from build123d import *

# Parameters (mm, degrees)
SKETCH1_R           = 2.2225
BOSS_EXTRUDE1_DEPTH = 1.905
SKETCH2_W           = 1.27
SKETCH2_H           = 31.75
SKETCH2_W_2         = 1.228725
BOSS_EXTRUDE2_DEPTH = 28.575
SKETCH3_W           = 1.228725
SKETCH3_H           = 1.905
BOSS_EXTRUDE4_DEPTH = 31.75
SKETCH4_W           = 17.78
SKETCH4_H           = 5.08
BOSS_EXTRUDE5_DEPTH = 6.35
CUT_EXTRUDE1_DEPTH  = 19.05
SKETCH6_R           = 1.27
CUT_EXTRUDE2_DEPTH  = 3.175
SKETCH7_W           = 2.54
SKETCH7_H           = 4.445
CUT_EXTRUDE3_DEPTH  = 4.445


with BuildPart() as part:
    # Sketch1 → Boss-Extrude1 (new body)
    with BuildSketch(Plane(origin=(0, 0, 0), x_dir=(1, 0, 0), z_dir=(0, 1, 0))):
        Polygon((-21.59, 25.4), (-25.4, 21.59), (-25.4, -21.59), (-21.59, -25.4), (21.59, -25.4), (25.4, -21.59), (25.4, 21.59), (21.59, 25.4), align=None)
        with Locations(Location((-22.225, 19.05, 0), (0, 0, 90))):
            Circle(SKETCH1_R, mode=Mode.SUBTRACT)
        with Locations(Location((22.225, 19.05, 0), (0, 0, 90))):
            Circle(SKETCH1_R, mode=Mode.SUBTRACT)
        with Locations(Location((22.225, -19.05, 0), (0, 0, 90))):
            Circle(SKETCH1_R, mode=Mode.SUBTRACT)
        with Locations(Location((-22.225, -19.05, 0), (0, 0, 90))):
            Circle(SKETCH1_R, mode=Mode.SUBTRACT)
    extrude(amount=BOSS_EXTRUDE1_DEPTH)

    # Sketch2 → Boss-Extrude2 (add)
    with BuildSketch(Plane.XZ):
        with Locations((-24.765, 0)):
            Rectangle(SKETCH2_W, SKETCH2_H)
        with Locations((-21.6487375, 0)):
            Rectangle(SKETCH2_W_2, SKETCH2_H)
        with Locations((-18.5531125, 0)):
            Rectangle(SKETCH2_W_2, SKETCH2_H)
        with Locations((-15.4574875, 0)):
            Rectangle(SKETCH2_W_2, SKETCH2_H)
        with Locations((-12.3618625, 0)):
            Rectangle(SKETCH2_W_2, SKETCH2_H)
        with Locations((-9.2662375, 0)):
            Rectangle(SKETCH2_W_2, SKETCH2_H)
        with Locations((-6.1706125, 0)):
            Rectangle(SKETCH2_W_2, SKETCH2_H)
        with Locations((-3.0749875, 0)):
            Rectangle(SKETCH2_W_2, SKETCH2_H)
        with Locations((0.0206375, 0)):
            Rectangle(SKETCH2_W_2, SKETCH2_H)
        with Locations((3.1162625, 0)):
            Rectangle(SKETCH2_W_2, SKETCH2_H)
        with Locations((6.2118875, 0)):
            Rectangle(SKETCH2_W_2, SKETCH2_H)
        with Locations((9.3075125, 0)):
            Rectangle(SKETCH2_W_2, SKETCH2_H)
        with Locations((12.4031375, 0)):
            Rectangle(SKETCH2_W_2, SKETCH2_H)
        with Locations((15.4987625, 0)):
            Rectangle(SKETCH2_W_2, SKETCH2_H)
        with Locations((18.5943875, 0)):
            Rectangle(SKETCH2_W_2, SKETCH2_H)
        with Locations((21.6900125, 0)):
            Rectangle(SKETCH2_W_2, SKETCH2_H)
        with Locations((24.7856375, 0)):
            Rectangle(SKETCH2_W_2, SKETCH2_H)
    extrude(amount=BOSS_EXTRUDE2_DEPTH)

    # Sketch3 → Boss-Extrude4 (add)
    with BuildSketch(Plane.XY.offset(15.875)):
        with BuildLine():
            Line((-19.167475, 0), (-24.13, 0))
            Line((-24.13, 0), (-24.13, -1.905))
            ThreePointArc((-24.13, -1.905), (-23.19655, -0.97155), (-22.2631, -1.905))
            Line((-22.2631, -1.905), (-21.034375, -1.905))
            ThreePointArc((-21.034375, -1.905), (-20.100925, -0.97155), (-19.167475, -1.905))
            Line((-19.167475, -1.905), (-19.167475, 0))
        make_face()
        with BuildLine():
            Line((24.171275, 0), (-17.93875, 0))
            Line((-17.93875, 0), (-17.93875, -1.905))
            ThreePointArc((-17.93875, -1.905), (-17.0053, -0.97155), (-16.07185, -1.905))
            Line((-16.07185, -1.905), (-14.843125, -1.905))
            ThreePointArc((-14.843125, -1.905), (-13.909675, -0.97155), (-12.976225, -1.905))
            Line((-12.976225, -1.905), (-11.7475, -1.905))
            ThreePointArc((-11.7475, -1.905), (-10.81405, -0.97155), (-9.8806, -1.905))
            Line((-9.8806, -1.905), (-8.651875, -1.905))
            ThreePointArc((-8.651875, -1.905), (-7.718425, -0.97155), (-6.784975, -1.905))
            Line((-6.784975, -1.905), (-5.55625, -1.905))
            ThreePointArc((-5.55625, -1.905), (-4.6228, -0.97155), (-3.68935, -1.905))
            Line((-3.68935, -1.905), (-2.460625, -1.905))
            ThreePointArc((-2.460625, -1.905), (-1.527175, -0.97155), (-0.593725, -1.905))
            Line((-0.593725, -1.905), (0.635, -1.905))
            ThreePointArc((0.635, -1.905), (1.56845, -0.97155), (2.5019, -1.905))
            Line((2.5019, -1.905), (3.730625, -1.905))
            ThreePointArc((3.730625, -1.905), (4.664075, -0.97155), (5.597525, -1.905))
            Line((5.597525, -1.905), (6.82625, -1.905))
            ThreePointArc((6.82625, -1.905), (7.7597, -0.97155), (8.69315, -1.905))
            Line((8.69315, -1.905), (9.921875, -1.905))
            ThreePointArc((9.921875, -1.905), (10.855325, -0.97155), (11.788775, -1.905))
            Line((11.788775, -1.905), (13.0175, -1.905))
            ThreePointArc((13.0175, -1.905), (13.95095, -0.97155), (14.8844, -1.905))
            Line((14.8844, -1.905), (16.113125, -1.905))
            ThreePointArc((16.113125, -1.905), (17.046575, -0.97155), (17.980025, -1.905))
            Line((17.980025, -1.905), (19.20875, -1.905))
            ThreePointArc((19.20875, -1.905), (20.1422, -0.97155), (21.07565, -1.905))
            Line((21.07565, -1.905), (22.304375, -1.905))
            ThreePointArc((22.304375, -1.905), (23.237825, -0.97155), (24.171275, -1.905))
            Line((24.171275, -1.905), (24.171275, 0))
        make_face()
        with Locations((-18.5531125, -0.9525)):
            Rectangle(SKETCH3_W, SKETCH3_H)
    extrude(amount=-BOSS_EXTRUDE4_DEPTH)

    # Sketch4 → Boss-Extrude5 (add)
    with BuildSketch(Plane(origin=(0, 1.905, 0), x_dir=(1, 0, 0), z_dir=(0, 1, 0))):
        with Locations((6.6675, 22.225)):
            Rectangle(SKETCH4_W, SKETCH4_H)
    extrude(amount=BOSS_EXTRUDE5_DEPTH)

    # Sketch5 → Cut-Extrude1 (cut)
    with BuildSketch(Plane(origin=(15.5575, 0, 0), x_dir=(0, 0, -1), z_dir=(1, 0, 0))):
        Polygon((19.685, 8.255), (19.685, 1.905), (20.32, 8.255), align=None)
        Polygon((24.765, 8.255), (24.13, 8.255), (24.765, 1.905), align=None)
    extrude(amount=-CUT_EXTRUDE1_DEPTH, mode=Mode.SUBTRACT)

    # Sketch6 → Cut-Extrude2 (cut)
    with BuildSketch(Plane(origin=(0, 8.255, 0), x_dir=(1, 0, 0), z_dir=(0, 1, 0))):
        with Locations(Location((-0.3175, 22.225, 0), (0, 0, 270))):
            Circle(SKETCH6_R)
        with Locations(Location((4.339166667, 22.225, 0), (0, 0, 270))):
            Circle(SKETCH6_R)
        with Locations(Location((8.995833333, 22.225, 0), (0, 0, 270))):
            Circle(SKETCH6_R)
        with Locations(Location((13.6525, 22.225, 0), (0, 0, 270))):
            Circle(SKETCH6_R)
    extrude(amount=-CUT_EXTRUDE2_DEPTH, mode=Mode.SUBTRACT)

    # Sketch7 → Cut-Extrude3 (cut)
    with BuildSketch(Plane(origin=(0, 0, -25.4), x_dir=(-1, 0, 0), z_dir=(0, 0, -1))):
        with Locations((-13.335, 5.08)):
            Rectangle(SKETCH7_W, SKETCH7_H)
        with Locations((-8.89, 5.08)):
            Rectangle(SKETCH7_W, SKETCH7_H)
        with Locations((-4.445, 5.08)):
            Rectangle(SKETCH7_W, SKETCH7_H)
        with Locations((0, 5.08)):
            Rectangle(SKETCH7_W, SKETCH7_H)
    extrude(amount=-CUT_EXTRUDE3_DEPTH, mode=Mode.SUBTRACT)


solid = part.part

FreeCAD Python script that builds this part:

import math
import FreeCAD as App
import Part
import Sketcher

V = App.Vector
Q = App.Units.Quantity

doc = App.newDocument("Part")
body = doc.addObject("PartDesign::Body", "Body")

sketch1 = doc.addObject("Sketcher::SketchObject", "Sketch")
body.addObject(sketch1)
sketch1.AttachmentSupport = (doc.XZ_Plane, [""])
sketch1.MapMode = "FlatFace"
sketch1.addGeometry([
    Part.LineSegment(V(-21.6, -25.4, 0), V(-25.4, -21.6, 0)),
    Part.LineSegment(V(-25.4, -21.6, 0), V(-25.4, 21.6, 0)),
    Part.LineSegment(V(-25.4, 21.6, 0), V(-21.6, 25.4, 0)),
    Part.LineSegment(V(-21.6, 25.4, 0), V(21.6, 25.4, 0)),
    Part.LineSegment(V(21.6, 25.4, 0), V(25.4, 21.6, 0)),
    Part.LineSegment(V(25.4, 21.6, 0), V(25.4, -21.6, 0)),
    Part.LineSegment(V(25.4, -21.6, 0), V(21.6, -25.4, 0)),
    Part.LineSegment(V(21.6, -25.4, 0), V(-21.6, -25.4, 0)),
    Part.Circle(V(-22.2, 19.1, 0), V(0, 0, 1), 2.2),
    Part.Circle(V(22.2, 19.1, 0), V(0, 0, 1), 2.2),
    Part.Circle(V(-22.2, -19.1, 0), V(0, 0, 1), 2.2),
    Part.Circle(V(22.2, -19.1, 0), V(0, 0, 1), 2.2),
], False)
sketch1.addConstraint([
    Sketcher.Constraint("Coincident", 0, 2, 1, 1),
    Sketcher.Constraint("Coincident", 1, 2, 2, 1),
    Sketcher.Constraint("Coincident", 2, 2, 3, 1),
    Sketcher.Constraint("Coincident", 3, 2, 4, 1),
    Sketcher.Constraint("Coincident", 4, 2, 5, 1),
    Sketcher.Constraint("Coincident", 5, 2, 6, 1),
    Sketcher.Constraint("Coincident", 6, 2, 7, 1),
    Sketcher.Constraint("Coincident", 7, 2, 0, 1),
    Sketcher.Constraint("Vertical", 1),
    Sketcher.Constraint("Horizontal", 3),
    Sketcher.Constraint("Vertical", 5),
    Sketcher.Constraint("Horizontal", 7),
    Sketcher.Constraint("Equal", 8, 9),
    Sketcher.Constraint("Equal", 9, 10),
    Sketcher.Constraint("Equal", 10, 11),
    Sketcher.Constraint("Symmetric", 9, 3, 10, 3, -1, 1),
    Sketcher.Constraint("Symmetric", 8, 3, 11, 3, -1, 1),
    Sketcher.Constraint("Symmetric", 0, 2, 4, 2, -1, 1),
    Sketcher.Constraint("Symmetric", 2, 2, 6, 2, -1, 1),
    Sketcher.Constraint("Symmetric", 8, 3, 9, 3, -2),
    Sketcher.Constraint("Perpendicular", 0, 2),
    Sketcher.Constraint("Perpendicular", 2, 4),
    Sketcher.Constraint("Perpendicular", 4, 6),
    Sketcher.Constraint("Horizontal", 1, 2, 4, 2),
    Sketcher.Constraint("Vertical", 3, 2, 6, 2),
    Sketcher.Constraint("Equal", 7, 1),
    Sketcher.Constraint("Diameter", 8, Q("0.175 in")),
    Sketcher.Constraint("DistanceX", 3, 1, 3, 2, Q("1.7 in")),
    Sketcher.Constraint("DistanceX", 0, 2, -1, 1, Q("1 in")),
    Sketcher.Constraint("DistanceY", 10, 3, 8, 3, Q("1.5 in")),
    Sketcher.Constraint("DistanceX", 8, 3, 9, 3, Q("1.75 in")),
])
pad1 = doc.addObject("PartDesign::Pad", "Pad")
body.addObject(pad1)
pad1.Profile = sketch1
pad1.Length = Q("0.075 in")
pad1.Reversed = True

sketch2 = doc.addObject("Sketcher::SketchObject", "Sketch001")
body.addObject(sketch2)
sketch2.AttachmentSupport = (doc.XZ_Plane, [""])
sketch2.MapMode = "FlatFace"
sketch2.addGeometry([
    Part.LineSegment(V(-25.4, 15.9, 0), V(-25.4, -15.9, 0)),
    Part.LineSegment(V(-25.4, -15.9, 0), V(-24.1, -15.9, 0)),
    Part.LineSegment(V(-24.1, -15.9, 0), V(-24.1, 15.9, 0)),
    Part.LineSegment(V(-24.1, 15.9, 0), V(-25.4, 15.9, 0)),
    Part.LineSegment(V(-22.3, 15.9, 0), V(-22.3, -15.9, 0)),
    Part.LineSegment(V(-22.3, -15.9, 0), V(-21, -15.9, 0)),
    Part.LineSegment(V(-21, -15.9, 0), V(-21, 15.9, 0)),
    Part.LineSegment(V(-21, 15.9, 0), V(-22.3, 15.9, 0)),
    Part.LineSegment(V(-19.2, 15.9, 0), V(-19.2, -15.9, 0)),
    Part.LineSegment(V(-19.2, -15.9, 0), V(-17.9, -15.9, 0)),
    Part.LineSegment(V(-17.9, -15.9, 0), V(-17.9, 15.9, 0)),
    Part.LineSegment(V(-17.9, 15.9, 0), V(-19.2, 15.9, 0)),
    Part.LineSegment(V(-16.1, 15.9, 0), V(-16.1, -15.9, 0)),
    Part.LineSegment(V(-16.1, -15.9, 0), V(-14.8, -15.9, 0)),
    Part.LineSegment(V(-14.8, -15.9, 0), V(-14.8, 15.9, 0)),
    Part.LineSegment(V(-14.8, 15.9, 0), V(-16.1, 15.9, 0)),
    Part.LineSegment(V(-13, 15.9, 0), V(-13, -15.9, 0)),
    Part.LineSegment(V(-13, -15.9, 0), V(-11.7, -15.9, 0)),
    Part.LineSegment(V(-11.7, -15.9, 0), V(-11.7, 15.9, 0)),
    Part.LineSegment(V(-11.7, 15.9, 0), V(-13, 15.9, 0)),
    Part.LineSegment(V(-9.9, 15.9, 0), V(-9.9, -15.9, 0)),
    Part.LineSegment(V(-9.9, -15.9, 0), V(-8.7, -15.9, 0)),
    Part.LineSegment(V(-8.7, -15.9, 0), V(-8.7, 15.9, 0)),
    Part.LineSegment(V(-8.7, 15.9, 0), V(-9.9, 15.9, 0)),
    Part.LineSegment(V(-6.8, 15.9, 0), V(-6.8, -15.9, 0)),
    Part.LineSegment(V(-6.8, -15.9, 0), V(-5.6, -15.9, 0)),
    Part.LineSegment(V(-5.6, -15.9, 0), V(-5.6, 15.9, 0)),
    Part.LineSegment(V(-5.6, 15.9, 0), V(-6.8, 15.9, 0)),
    Part.LineSegment(V(-3.7, 15.9, 0), V(-3.7, -15.9, 0)),
    Part.LineSegment(V(-3.7, -15.9, 0), V(-2.5, -15.9, 0)),
    Part.LineSegment(V(-2.5, -15.9, 0), V(-2.5, 15.9, 0)),
    Part.LineSegment(V(-2.5, 15.9, 0), V(-3.7, 15.9, 0)),
    Part.LineSegment(V(-0.6, 15.9, 0), V(-0.6, -15.9, 0)),
    Part.LineSegment(V(-0.6, -15.9, 0), V(0.6, -15.9, 0)),
    Part.LineSegment(V(0.6, -15.9, 0), V(0.6, 15.9, 0)),
    Part.LineSegment(V(0.6, 15.9, 0), V(-0.6, 15.9, 0)),
    Part.LineSegment(V(2.5, 15.9, 0), V(2.5, -15.9, 0)),
    Part.LineSegment(V(2.5, -15.9, 0), V(3.7, -15.9, 0)),
    Part.LineSegment(V(3.7, -15.9, 0), V(3.7, 15.9, 0)),
    Part.LineSegment(V(3.7, 15.9, 0), V(2.5, 15.9, 0)),
    Part.LineSegment(V(5.6, 15.9, 0), V(5.6, -15.9, 0)),
    Part.LineSegment(V(5.6, -15.9, 0), V(6.8, -15.9, 0)),
    Part.LineSegment(V(6.8, -15.9, 0), V(6.8, 15.9, 0)),
    Part.LineSegment(V(6.8, 15.9, 0), V(5.6, 15.9, 0)),
    Part.LineSegment(V(8.7, 15.9, 0), V(8.7, -15.9, 0)),
    Part.LineSegment(V(8.7, -15.9, 0), V(9.9, -15.9, 0)),
    Part.LineSegment(V(9.9, -15.9, 0), V(9.9, 15.9, 0)),
    Part.LineSegment(V(9.9, 15.9, 0), V(8.7, 15.9, 0)),
    Part.LineSegment(V(11.8, 15.9, 0), V(11.8, -15.9, 0)),
    Part.LineSegment(V(11.8, -15.9, 0), V(13, -15.9, 0)),
    Part.LineSegment(V(13, -15.9, 0), V(13, 15.9, 0)),
    Part.LineSegment(V(13, 15.9, 0), V(11.8, 15.9, 0)),
    Part.LineSegment(V(14.9, 15.9, 0), V(14.9, -15.9, 0)),
    Part.LineSegment(V(14.9, -15.9, 0), V(16.1, -15.9, 0)),
    Part.LineSegment(V(16.1, -15.9, 0), V(16.1, 15.9, 0)),
    Part.LineSegment(V(16.1, 15.9, 0), V(14.9, 15.9, 0)),
    Part.LineSegment(V(18, 15.9, 0), V(18, -15.9, 0)),
    Part.LineSegment(V(18, -15.9, 0), V(19.2, -15.9, 0)),
    Part.LineSegment(V(19.2, -15.9, 0), V(19.2, 15.9, 0)),
    Part.LineSegment(V(19.2, 15.9, 0), V(18, 15.9, 0)),
    Part.LineSegment(V(21.1, 15.9, 0), V(21.1, -15.9, 0)),
    Part.LineSegment(V(21.1, -15.9, 0), V(22.3, -15.9, 0)),
    Part.LineSegment(V(22.3, -15.9, 0), V(22.3, 15.9, 0)),
    Part.LineSegment(V(22.3, 15.9, 0), V(21.1, 15.9, 0)),
    Part.LineSegment(V(24.2, 15.9, 0), V(24.2, -15.9, 0)),
    Part.LineSegment(V(24.2, -15.9, 0), V(25.4, -15.9, 0)),
    Part.LineSegment(V(25.4, -15.9, 0), V(25.4, 15.9, 0)),
    Part.LineSegment(V(25.4, 15.9, 0), V(24.2, 15.9, 0)),
], False)
sketch2.addConstraint([
    Sketcher.Constraint("Coincident", 0, 2, 1, 1),
    Sketcher.Constraint("Coincident", 1, 2, 2, 1),
    Sketcher.Constraint("Coincident", 2, 2, 3, 1),
    Sketcher.Constraint("Coincident", 3, 2, 0, 1),
    Sketcher.Constraint("Coincident", 4, 2, 5, 1),
    Sketcher.Constraint("Coincident", 5, 2, 6, 1),
    Sketcher.Constraint("Coincident", 6, 2, 7, 1),
    Sketcher.Constraint("Coincident", 7, 2, 4, 1),
    Sketcher.Constraint("Coincident", 8, 2, 9, 1),
    Sketcher.Constraint("Coincident", 9, 2, 10, 1),
    Sketcher.Constraint("Coincident", 10, 2, 11, 1),
    Sketcher.Constraint("Coincident", 11, 2, 8, 1),
    Sketcher.Constraint("Coincident", 12, 2, 13, 1),
    Sketcher.Constraint("Coincident", 13, 2, 14, 1),
    Sketcher.Constraint("Coincident", 14, 2, 15, 1),
    Sketcher.Constraint("Coincident", 15, 2, 12, 1),
    Sketcher.Constraint("Coincident", 16, 2, 17, 1),
    Sketcher.Constraint("Coincident", 17, 2, 18, 1),
    Sketcher.Constraint("Coincident", 18, 2, 19, 1),
    Sketcher.Constraint("Coincident", 19, 2, 16, 1),
    Sketcher.Constraint("Coincident", 20, 2, 21, 1),
    Sketcher.Constraint("Coincident", 21, 2, 22, 1),
    Sketcher.Constraint("Coincident", 22, 2, 23, 1),
    Sketcher.Constraint("Coincident", 23, 2, 20, 1),
    Sketcher.Constraint("Coincident", 24, 2, 25, 1),
    Sketcher.Constraint("Coincident", 25, 2, 26, 1),
    Sketcher.Constraint("Coincident", 26, 2, 27, 1),
    Sketcher.Constraint("Coincident", 27, 2, 24, 1),
    Sketcher.Constraint("Coincident", 28, 2, 29, 1),
    Sketcher.Constraint("Coincident", 29, 2, 30, 1),
    Sketcher.Constraint("Coincident", 30, 2, 31, 1),
    Sketcher.Constraint("Coincident", 31, 2, 28, 1),
    Sketcher.Constraint("Coincident", 32, 2, 33, 1),
    Sketcher.Constraint("Coincident", 33, 2, 34, 1),
    Sketcher.Constraint("Coincident", 34, 2, 35, 1),
    Sketcher.Constraint("Coincident", 35, 2, 32, 1),
    Sketcher.Constraint("Coincident", 36, 2, 37, 1),
    Sketcher.Constraint("Coincident", 37, 2, 38, 1),
    Sketcher.Constraint("Coincident", 38, 2, 39, 1),
    Sketcher.Constraint("Coincident", 39, 2, 36, 1),
    Sketcher.Constraint("Coincident", 40, 2, 41, 1),
    Sketcher.Constraint("Coincident", 41, 2, 42, 1),
    Sketcher.Constraint("Coincident", 42, 2, 43, 1),
    Sketcher.Constraint("Coincident", 43, 2, 40, 1),
    Sketcher.Constraint("Coincident", 44, 2, 45, 1),
    Sketcher.Constraint("Coincident", 45, 2, 46, 1),
    Sketcher.Constraint("Coincident", 46, 2, 47, 1),
    Sketcher.Constraint("Coincident", 47, 2, 44, 1),
    Sketcher.Constraint("Coincident", 48, 2, 49, 1),
    Sketcher.Constraint("Coincident", 49, 2, 50, 1),
    Sketcher.Constraint("Coincident", 50, 2, 51, 1),
    Sketcher.Constraint("Coincident", 51, 2, 48, 1),
    Sketcher.Constraint("Coincident", 52, 2, 53, 1),
    Sketcher.Constraint("Coincident", 53, 2, 54, 1),
    Sketcher.Constraint("Coincident", 54, 2, 55, 1),
    Sketcher.Constraint("Coincident", 55, 2, 52, 1),
    Sketcher.Constraint("Coincident", 56, 2, 57, 1),
    Sketcher.Constraint("Coincident", 57, 2, 58, 1),
    Sketcher.Constraint("Coincident", 58, 2, 59, 1),
    Sketcher.Constraint("Coincident", 59, 2, 56, 1),
    Sketcher.Constraint("Coincident", 60, 2, 61, 1),
    Sketcher.Constraint("Coincident", 61, 2, 62, 1),
    Sketcher.Constraint("Coincident", 62, 2, 63, 1),
    Sketcher.Constraint("Coincident", 63, 2, 60, 1),
    Sketcher.Constraint("Coincident", 64, 2, 65, 1),
    Sketcher.Constraint("Coincident", 65, 2, 66, 1),
    Sketcher.Constraint("Coincident", 66, 2, 67, 1),
    Sketcher.Constraint("Coincident", 67, 2, 64, 1),
    Sketcher.Constraint("Vertical", 0),
    Sketcher.Constraint("Horizontal", 1),
    Sketcher.Constraint("Vertical", 2),
    Sketcher.Constraint("Horizontal", 3),
    Sketcher.Constraint("Vertical", 4),
    Sketcher.Constraint("Horizontal", 5),
    Sketcher.Constraint("Vertical", 6),
    Sketcher.Constraint("Horizontal", 7),
    Sketcher.Constraint("Vertical", 8),
    Sketcher.Constraint("Horizontal", 9),
    Sketcher.Constraint("Vertical", 10),
    Sketcher.Constraint("Horizontal", 11),
    Sketcher.Constraint("Vertical", 12),
    Sketcher.Constraint("Horizontal", 13),
    Sketcher.Constraint("Vertical", 14),
    Sketcher.Constraint("Horizontal", 15),
    Sketcher.Constraint("Vertical", 16),
    Sketcher.Constraint("Horizontal", 17),
    Sketcher.Constraint("Vertical", 18),
    Sketcher.Constraint("Horizontal", 19),
    Sketcher.Constraint("Vertical", 20),
    Sketcher.Constraint("Horizontal", 21),
    Sketcher.Constraint("Vertical", 22),
    Sketcher.Constraint("Horizontal", 23),
    Sketcher.Constraint("Vertical", 24),
    Sketcher.Constraint("Horizontal", 25),
    Sketcher.Constraint("Vertical", 26),
    Sketcher.Constraint("Horizontal", 27),
    Sketcher.Constraint("Vertical", 28),
    Sketcher.Constraint("Horizontal", 29),
    Sketcher.Constraint("Vertical", 30),
    Sketcher.Constraint("Horizontal", 31),
    Sketcher.Constraint("Vertical", 32),
    Sketcher.Constraint("Horizontal", 33),
    Sketcher.Constraint("Vertical", 34),
    Sketcher.Constraint("Horizontal", 35),
    Sketcher.Constraint("Vertical", 36),
    Sketcher.Constraint("Horizontal", 37),
    Sketcher.Constraint("Vertical", 38),
    Sketcher.Constraint("Horizontal", 39),
    Sketcher.Constraint("Vertical", 40),
    Sketcher.Constraint("Horizontal", 41),
    Sketcher.Constraint("Vertical", 42),
    Sketcher.Constraint("Horizontal", 43),
    Sketcher.Constraint("Vertical", 44),
    Sketcher.Constraint("Horizontal", 45),
    Sketcher.Constraint("Vertical", 46),
    Sketcher.Constraint("Horizontal", 47),
    Sketcher.Constraint("Vertical", 48),
    Sketcher.Constraint("Horizontal", 49),
    Sketcher.Constraint("Vertical", 50),
    Sketcher.Constraint("Horizontal", 51),
    Sketcher.Constraint("Vertical", 52),
    Sketcher.Constraint("Horizontal", 53),
    Sketcher.Constraint("Vertical", 54),
    Sketcher.Constraint("Horizontal", 55),
    Sketcher.Constraint("Vertical", 56),
    Sketcher.Constraint("Horizontal", 57),
    Sketcher.Constraint("Vertical", 58),
    Sketcher.Constraint("Horizontal", 59),
    Sketcher.Constraint("Vertical", 60),
    Sketcher.Constraint("Horizontal", 61),
    Sketcher.Constraint("Vertical", 62),
    Sketcher.Constraint("Horizontal", 63),
    Sketcher.Constraint("Vertical", 64),
    Sketcher.Constraint("Horizontal", 65),
    Sketcher.Constraint("Vertical", 66),
    Sketcher.Constraint("Horizontal", 67),
    Sketcher.Constraint("Symmetric", 3, 2, 65, 2, -1, 1),
    Sketcher.Constraint("Horizontal", 1, 2, 4, 2),
    Sketcher.Constraint("Horizontal", 3, 2, 6, 2),
    Sketcher.Constraint("Horizontal", 5, 2, 8, 2),
    Sketcher.Constraint("Horizontal", 7, 2, 10, 2),
    Sketcher.Constraint("Horizontal", 9, 2, 12, 2),
    Sketcher.Constraint("Horizontal", 11, 2, 14, 2),
    Sketcher.Constraint("Horizontal", 13, 2, 16, 2),
    Sketcher.Constraint("Horizontal", 15, 2, 18, 2),
    Sketcher.Constraint("Horizontal", 17, 2, 20, 2),
    Sketcher.Constraint("Horizontal", 19, 2, 22, 2),
    Sketcher.Constraint("Horizontal", 21, 2, 24, 2),
    Sketcher.Constraint("Horizontal", 23, 2, 26, 2),
    Sketcher.Constraint("Horizontal", 25, 2, 28, 2),
    Sketcher.Constraint("Horizontal", 27, 2, 30, 2),
    Sketcher.Constraint("Horizontal", 29, 2, 32, 2),
    Sketcher.Constraint("Horizontal", 31, 2, 34, 2),
    Sketcher.Constraint("Horizontal", 33, 2, 36, 2),
    Sketcher.Constraint("Horizontal", 35, 2, 38, 2),
    Sketcher.Constraint("Horizontal", 37, 2, 40, 2),
    Sketcher.Constraint("Horizontal", 39, 2, 42, 2),
    Sketcher.Constraint("Horizontal", 41, 2, 44, 2),
    Sketcher.Constraint("Horizontal", 43, 2, 46, 2),
    Sketcher.Constraint("Horizontal", 45, 2, 48, 2),
    Sketcher.Constraint("Horizontal", 47, 2, 50, 2),
    Sketcher.Constraint("Horizontal", 49, 2, 52, 2),
    Sketcher.Constraint("Horizontal", 51, 2, 54, 2),
    Sketcher.Constraint("Horizontal", 53, 2, 56, 2),
    Sketcher.Constraint("Horizontal", 55, 2, 58, 2),
    Sketcher.Constraint("Horizontal", 57, 2, 60, 2),
    Sketcher.Constraint("Horizontal", 59, 2, 62, 2),
    Sketcher.Constraint("Horizontal", 61, 2, 64, 2),
    Sketcher.Constraint("Horizontal", 63, 2, 66, 2),
    Sketcher.Constraint("Equal", 7, 9),
    Sketcher.Constraint("Equal", 11, 13),
    Sketcher.Constraint("Equal", 15, 17),
    Sketcher.Constraint("Equal", 19, 21),
    Sketcher.Constraint("Equal", 23, 25),
    Sketcher.Constraint("Equal", 27, 29),
    Sketcher.Constraint("Equal", 31, 33),
    Sketcher.Constraint("Equal", 35, 37),
    Sketcher.Constraint("Equal", 39, 41),
    Sketcher.Constraint("Equal", 43, 45),
    Sketcher.Constraint("Equal", 47, 49),
    Sketcher.Constraint("Equal", 51, 53),
    Sketcher.Constraint("Equal", 55, 57),
    Sketcher.Constraint("Equal", 59, 61),
    Sketcher.Constraint("Equal", 63, 65),
    Sketcher.Constraint("DistanceX", 0, 2, -1, 1, Q("1 in")),
    Sketcher.Constraint("DistanceX", 1, 1, 1, 2, Q("0.05 in")),
    Sketcher.Constraint("DistanceY", 0, 2, 0, 1, Q("1.25 in")),
    Sketcher.Constraint("DistanceX", 5, 2, -1, 1, Q("0.828125 in")),
    Sketcher.Constraint("DistanceX", 20, 2, -1, 1, Q("0.389 in")),
    Sketcher.Constraint("DistanceX", 25, 2, -1, 1, Q("0.21875 in")),
    Sketcher.Constraint("DistanceX", -1, 1, 33, 2, Q("0.025 in")),
    Sketcher.Constraint("DistanceX", -1, 1, 45, 2, Q("0.390625 in")),
    Sketcher.Constraint("DistanceX", -1, 1, 52, 2, Q("0.586 in")),
    Sketcher.Constraint("DistanceX", 4, 2, -1, 1, Q("0.8765 in")),
    Sketcher.Constraint("DistanceX", 17, 2, -1, 1, Q("0.4625 in")),
    Sketcher.Constraint("DistanceX", -1, 1, 36, 2, Q("0.0985 in")),
    Sketcher.Constraint("DistanceX", -1, 1, 49, 2, Q("0.5125 in")),
    Sketcher.Constraint("DistanceX", 9, 2, -1, 1, 17.93875),
    Sketcher.Constraint("DistanceX", 12, 2, -1, 1, 16.07185),
    Sketcher.Constraint("DistanceX", 28, 2, -1, 1, 3.68935),
    Sketcher.Constraint("DistanceX", -1, 1, 41, 2, 6.82625),
    Sketcher.Constraint("DistanceX", -1, 1, 57, 2, 19.20875),
    Sketcher.Constraint("DistanceX", -1, 1, 60, 2, 21.07565),
])
pad2 = doc.addObject("PartDesign::Pad", "Pad001")
body.addObject(pad2)
pad2.Profile = sketch2
pad2.Length = Q("1.125 in")

sketch3 = doc.addObject("Sketcher::SketchObject", "Sketch002")
body.addObject(sketch3)
sketch3.AttachmentSupport = (doc.XY_Plane, [""])
sketch3.MapMode = "FlatFace"
sketch3.AttachmentOffset = App.Placement(V(0, 0, 0.625 * 25.4), App.Rotation())
sketch3.addGeometry([
    Part.LineSegment(V(-24.1, 0, 0), V(-24.1, -1.9, 0)),
    Part.ArcOfCircle(Part.Circle(V(-23.2, -1.9, 0), V(0, 0, 1), 0.9), math.radians(0), math.radians(180)),
    Part.LineSegment(V(-22.3, -1.9, 0), V(-21, -1.9, 0)),
    Part.ArcOfCircle(Part.Circle(V(-20.1, -1.9, 0), V(0, 0, 1), 0.9), math.radians(0), math.radians(180)),
    Part.LineSegment(V(-19.2, -1.9, 0), V(-17.9, -1.9, 0)),
    Part.ArcOfCircle(Part.Circle(V(-17, -1.9, 0), V(0, 0, 1), 0.9), math.radians(0), math.radians(180)),
    Part.LineSegment(V(-16.1, -1.9, 0), V(-14.8, -1.9, 0)),
    Part.ArcOfCircle(Part.Circle(V(-13.9, -1.9, 0), V(0, 0, 1), 0.9), math.radians(0), math.radians(180)),
    Part.LineSegment(V(-13, -1.9, 0), V(-11.7, -1.9, 0)),
    Part.ArcOfCircle(Part.Circle(V(-10.8, -1.9, 0), V(0, 0, 1), 0.9), math.radians(0), math.radians(180)),
    Part.LineSegment(V(-9.9, -1.9, 0), V(-8.7, -1.9, 0)),
    Part.ArcOfCircle(Part.Circle(V(-7.7, -1.9, 0), V(0, 0, 1), 0.9), math.radians(0), math.radians(180)),
    Part.LineSegment(V(-6.8, -1.9, 0), V(-5.6, -1.9, 0)),
    Part.ArcOfCircle(Part.Circle(V(-4.6, -1.9, 0), V(0, 0, 1), 0.9), math.radians(0), math.radians(180)),
    Part.LineSegment(V(-3.7, -1.9, 0), V(-2.5, -1.9, 0)),
    Part.ArcOfCircle(Part.Circle(V(-1.5, -1.9, 0), V(0, 0, 1), 0.9), math.radians(0), math.radians(180)),
    Part.LineSegment(V(-0.6, -1.9, 0), V(0.6, -1.9, 0)),
    Part.ArcOfCircle(Part.Circle(V(1.6, -1.9, 0), V(0, 0, 1), 0.9), math.radians(0), math.radians(180)),
    Part.LineSegment(V(2.5, -1.9, 0), V(3.7, -1.9, 0)),
    Part.ArcOfCircle(Part.Circle(V(4.7, -1.9, 0), V(0, 0, 1), 0.9), math.radians(0), math.radians(180)),
    Part.LineSegment(V(5.6, -1.9, 0), V(6.8, -1.9, 0)),
    Part.ArcOfCircle(Part.Circle(V(7.8, -1.9, 0), V(0, 0, 1), 0.9), math.radians(0), math.radians(180)),
    Part.LineSegment(V(8.7, -1.9, 0), V(9.9, -1.9, 0)),
    Part.ArcOfCircle(Part.Circle(V(10.9, -1.9, 0), V(0, 0, 1), 0.9), math.radians(0), math.radians(180)),
    Part.LineSegment(V(11.8, -1.9, 0), V(13, -1.9, 0)),
    Part.ArcOfCircle(Part.Circle(V(14, -1.9, 0), V(0, 0, 1), 0.9), math.radians(0), math.radians(180)),
    Part.LineSegment(V(14.9, -1.9, 0), V(16.1, -1.9, 0)),
    Part.ArcOfCircle(Part.Circle(V(17, -1.9, 0), V(0, 0, 1), 0.9), math.radians(0), math.radians(180)),
    Part.LineSegment(V(18, -1.9, 0), V(19.2, -1.9, 0)),
    Part.ArcOfCircle(Part.Circle(V(20.1, -1.9, 0), V(0, 0, 1), 0.9), math.radians(0), math.radians(180)),
    Part.LineSegment(V(21.1, -1.9, 0), V(22.3, -1.9, 0)),
    Part.ArcOfCircle(Part.Circle(V(23.2, -1.9, 0), V(0, 0, 1), 0.9), math.radians(0), math.radians(180)),
    Part.LineSegment(V(24.2, -1.9, 0), V(24.2, 0, 0)),
    Part.LineSegment(V(24.2, 0, 0), V(-24.1, 0, 0)),
], False)
sketch3.addConstraint([
    Sketcher.Constraint("Tangent", 0, 2, 1, 2),
    Sketcher.Constraint("Coincident", 1, 1, 2, 1),
    Sketcher.Constraint("Coincident", 2, 2, 3, 2),
    Sketcher.Constraint("Coincident", 3, 1, 4, 1),
    Sketcher.Constraint("Coincident", 4, 2, 5, 2),
    Sketcher.Constraint("Coincident", 5, 1, 6, 1),
    Sketcher.Constraint("Coincident", 6, 2, 7, 2),
    Sketcher.Constraint("Coincident", 7, 1, 8, 1),
    Sketcher.Constraint("Coincident", 8, 2, 9, 2),
    Sketcher.Constraint("Coincident", 9, 1, 10, 1),
    Sketcher.Constraint("Coincident", 10, 2, 11, 2),
    Sketcher.Constraint("Coincident", 11, 1, 12, 1),
    Sketcher.Constraint("Coincident", 12, 2, 13, 2),
    Sketcher.Constraint("Coincident", 13, 1, 14, 1),
    Sketcher.Constraint("Coincident", 14, 2, 15, 2),
    Sketcher.Constraint("Coincident", 15, 1, 16, 1),
    Sketcher.Constraint("Coincident", 16, 2, 17, 2),
    Sketcher.Constraint("Coincident", 17, 1, 18, 1),
    Sketcher.Constraint("Coincident", 18, 2, 19, 2),
    Sketcher.Constraint("Coincident", 19, 1, 20, 1),
    Sketcher.Constraint("Coincident", 20, 2, 21, 2),
    Sketcher.Constraint("Coincident", 21, 1, 22, 1),
    Sketcher.Constraint("Coincident", 22, 2, 23, 2),
    Sketcher.Constraint("Coincident", 23, 1, 24, 1),
    Sketcher.Constraint("Coincident", 24, 2, 25, 2),
    Sketcher.Constraint("Coincident", 25, 1, 26, 1),
    Sketcher.Constraint("Coincident", 26, 2, 27, 2),
    Sketcher.Constraint("Coincident", 27, 1, 28, 1),
    Sketcher.Constraint("Coincident", 28, 2, 29, 2),
    Sketcher.Constraint("Coincident", 29, 1, 30, 1),
    Sketcher.Constraint("Coincident", 30, 2, 31, 2),
    Sketcher.Constraint("Tangent", 31, 1, 32, 1),
    Sketcher.Constraint("Coincident", 32, 2, 33, 1),
    Sketcher.Constraint("Coincident", 33, 2, 0, 1),
    Sketcher.Constraint("Vertical", 0),
    Sketcher.Constraint("Horizontal", 2),
    Sketcher.Constraint("Horizontal", 4),
    Sketcher.Constraint("Horizontal", 6),
    Sketcher.Constraint("Horizontal", 8),
    Sketcher.Constraint("Horizontal", 10),
    Sketcher.Constraint("Horizontal", 12),
    Sketcher.Constraint("Horizontal", 14),
    Sketcher.Constraint("Horizontal", 16),
    Sketcher.Constraint("Horizontal", 18),
    Sketcher.Constraint("Horizontal", 20),
    Sketcher.Constraint("Horizontal", 22),
    Sketcher.Constraint("Horizontal", 24),
    Sketcher.Constraint("Horizontal", 26),
    Sketcher.Constraint("Horizontal", 28),
    Sketcher.Constraint("Horizontal", 30),
    Sketcher.Constraint("Vertical", 32),
    Sketcher.Constraint("Horizontal", 33),
    Sketcher.Constraint("Equal", 1, 3),
    Sketcher.Constraint("Equal", 3, 5),
    Sketcher.Constraint("Equal", 5, 7),
    Sketcher.Constraint("Equal", 7, 9),
    Sketcher.Constraint("Equal", 9, 11),
    Sketcher.Constraint("Equal", 11, 13),
    Sketcher.Constraint("Equal", 13, 15),
    Sketcher.Constraint("Equal", 15, 17),
    Sketcher.Constraint("Equal", 17, 19),
    Sketcher.Constraint("Equal", 19, 21),
    Sketcher.Constraint("Equal", 21, 23),
    Sketcher.Constraint("Equal", 23, 25),
    Sketcher.Constraint("Equal", 25, 27),
    Sketcher.Constraint("Equal", 27, 29),
    Sketcher.Constraint("Equal", 29, 31),
    Sketcher.Constraint("PointOnObject", 32, 2, -1),
    Sketcher.Constraint("Horizontal", 1, 3, 3, 3),
    Sketcher.Constraint("Horizontal", 3, 3, 5, 3),
    Sketcher.Constraint("Horizontal", 5, 3, 7, 3),
    Sketcher.Constraint("Horizontal", 7, 3, 9, 3),
    Sketcher.Constraint("Horizontal", 9, 3, 11, 3),
    Sketcher.Constraint("Horizontal", 11, 3, 13, 3),
    Sketcher.Constraint("Horizontal", 13, 3, 15, 3),
    Sketcher.Constraint("Horizontal", 15, 3, 17, 3),
    Sketcher.Constraint("Horizontal", 17, 3, 19, 3),
    Sketcher.Constraint("Horizontal", 19, 3, 21, 3),
    Sketcher.Constraint("Horizontal", 21, 3, 23, 3),
    Sketcher.Constraint("Horizontal", 23, 3, 25, 3),
    Sketcher.Constraint("Horizontal", 25, 3, 27, 3),
    Sketcher.Constraint("Horizontal", 27, 3, 29, 3),
    Sketcher.Constraint("Horizontal", 29, 3, 31, 3),
    Sketcher.Constraint("Horizontal", 0, 2, 1, 1),
    Sketcher.Constraint("Horizontal", 2, 2, 3, 1),
    Sketcher.Constraint("Horizontal", 4, 2, 5, 1),
    Sketcher.Constraint("Horizontal", 6, 2, 7, 1),
    Sketcher.Constraint("Horizontal", 8, 2, 9, 1),
    Sketcher.Constraint("Horizontal", 10, 2, 11, 1),
    Sketcher.Constraint("Horizontal", 12, 2, 13, 1),
    Sketcher.Constraint("Horizontal", 14, 2, 15, 1),
    Sketcher.Constraint("Horizontal", 16, 2, 17, 1),
    Sketcher.Constraint("Horizontal", 18, 2, 19, 1),
    Sketcher.Constraint("Horizontal", 20, 2, 21, 1),
    Sketcher.Constraint("Horizontal", 22, 2, 23, 1),
    Sketcher.Constraint("Horizontal", 24, 2, 25, 1),
    Sketcher.Constraint("Horizontal", 26, 2, 27, 1),
    Sketcher.Constraint("Horizontal", 28, 2, 29, 1),
    Sketcher.Constraint("Equal", 2, 4),
    Sketcher.Constraint("Equal", 4, 6),
    Sketcher.Constraint("Equal", 6, 8),
    Sketcher.Constraint("Equal", 8, 10),
    Sketcher.Constraint("Equal", 10, 12),
    Sketcher.Constraint("Equal", 12, 14),
    Sketcher.Constraint("Equal", 14, 16),
    Sketcher.Constraint("Equal", 16, 18),
    Sketcher.Constraint("Equal", 18, 20),
    Sketcher.Constraint("Equal", 20, 22),
    Sketcher.Constraint("Equal", 22, 24),
    Sketcher.Constraint("Equal", 24, 26),
    Sketcher.Constraint("Equal", 26, 28),
    Sketcher.Constraint("Equal", 28, 30),
    Sketcher.Constraint("DistanceY", 0, 2, 0, 1, Q("0.075 in")),
    Sketcher.Constraint("DistanceX", 0, 2, -1, 1, Q("0.95 in")),
    Sketcher.Constraint("DistanceX", 13, 3, -1, 1, Q("0.182 in")),
    Sketcher.Constraint("DistanceX", -1, 1, 29, 3, Q("0.793 in")),
])
pad3 = doc.addObject("PartDesign::Pad", "Pad002")
body.addObject(pad3)
pad3.Profile = sketch3
pad3.Length = Q("1.25 in")
pad3.Reversed = True

sketch4 = doc.addObject("Sketcher::SketchObject", "Sketch003")
body.addObject(sketch4)
sketch4.AttachmentSupport = (doc.XZ_Plane, [""])
sketch4.MapMode = "FlatFace"
sketch4.AttachmentOffset = App.Placement(V(0, 0, -0.075 * 25.4), App.Rotation())
sketch4.addGeometry([
    Part.LineSegment(V(-2, -25, 0), V(-2, -20, 0)),
    Part.LineSegment(V(-2, -20, 0), V(16, -20, 0)),
    Part.LineSegment(V(16, -20, 0), V(16, -25, 0)),
    Part.LineSegment(V(16, -25, 0), V(-2, -25, 0)),
], False)
sketch4.addConstraint([
    Sketcher.Constraint("Coincident", 0, 2, 1, 1),
    Sketcher.Constraint("Coincident", 1, 2, 2, 1),
    Sketcher.Constraint("Coincident", 2, 2, 3, 1),
    Sketcher.Constraint("Coincident", 3, 2, 0, 1),
    Sketcher.Constraint("Vertical", 0),
    Sketcher.Constraint("Horizontal", 1),
    Sketcher.Constraint("Vertical", 2),
    Sketcher.Constraint("Horizontal", 3),
    Sketcher.Constraint("DistanceX", 1, 1, 1, 2, Q("0.7 in")),
    Sketcher.Constraint("DistanceY", 0, 1, 0, 2, Q("0.2 in")),
    Sketcher.Constraint("DistanceY", 0, 2, -1, 1, Q("0.775 in")),
    Sketcher.Constraint("DistanceX", 0, 2, -1, 1, Q("0.0875 in")),
])
pad4 = doc.addObject("PartDesign::Pad", "Pad003")
body.addObject(pad4)
pad4.Profile = sketch4
pad4.Length = Q("0.25 in")
pad4.Reversed = True

sketch5 = doc.addObject("Sketcher::SketchObject", "Sketch004")
body.addObject(sketch5)
sketch5.AttachmentSupport = (doc.YZ_Plane, [""])
sketch5.MapMode = "FlatFace"
sketch5.AttachmentOffset = App.Placement(V(0, 0, 0.6125 * 25.4), App.Rotation())
sketch5.addGeometry([
    Part.LineSegment(V(8.3, -19.7, 0), V(1.9, -19.7, 0)),
    Part.LineSegment(V(1.9, -19.7, 0), V(8.3, -20.3, 0)),
    Part.LineSegment(V(8.3, -20.3, 0), V(8.3, -19.7, 0)),
    Part.LineSegment(V(8.3, -24.8, 0), V(8.3, -24.1, 0)),
    Part.LineSegment(V(8.3, -24.1, 0), V(1.9, -24.8, 0)),
    Part.LineSegment(V(1.9, -24.8, 0), V(8.3, -24.8, 0)),
], False)
sketch5.addConstraint([
    Sketcher.Constraint("Coincident", 0, 2, 1, 1),
    Sketcher.Constraint("Coincident", 1, 2, 2, 1),
    Sketcher.Constraint("Coincident", 2, 2, 0, 1),
    Sketcher.Constraint("Coincident", 3, 2, 4, 1),
    Sketcher.Constraint("Coincident", 4, 2, 5, 1),
    Sketcher.Constraint("Coincident", 5, 2, 3, 1),
    Sketcher.Constraint("Horizontal", 0),
    Sketcher.Constraint("Vertical", 2),
    Sketcher.Constraint("Vertical", 3),
    Sketcher.Constraint("Horizontal", 5),
    Sketcher.Constraint("Vertical", 2, 2, 3, 2),
    Sketcher.Constraint("Vertical", 0, 2, 4, 2),
    Sketcher.Constraint("Equal", 2, 3),
    Sketcher.Constraint("DistanceX", 0, 2, 0, 1, Q("0.25 in")),
    Sketcher.Constraint("DistanceY", 1, 2, -1, 1, Q("0.8 in")),
    Sketcher.Constraint("DistanceY", 4, 2, 0, 2, Q("0.2 in")),
    Sketcher.Constraint("DistanceY", 2, 1, 2, 2, Q("0.025 in")),
    Sketcher.Constraint("DistanceX", -1, 1, 0, 2, Q("0.075 in")),
])
pocket1 = doc.addObject("PartDesign::Pocket", "Pocket")
body.addObject(pocket1)
pocket1.Profile = sketch5
pocket1.Length = Q("0.75 in")

sketch6 = doc.addObject("Sketcher::SketchObject", "Sketch005")
body.addObject(sketch6)
sketch6.AttachmentSupport = (doc.XZ_Plane, [""])
sketch6.MapMode = "FlatFace"
sketch6.AttachmentOffset = App.Placement(V(0, 0, -0.325 * 25.4), App.Rotation())
sketch6.addGeometry([
    Part.Circle(V(-0.3, -22.2, 0), V(0, 0, 1), 1.3),
    Part.Circle(V(4.3, -22.2, 0), V(0, 0, 1), 1.3),
    Part.Circle(V(9, -22.2, 0), V(0, 0, 1), 1.3),
    Part.Circle(V(13.7, -22.2, 0), V(0, 0, 1), 1.3),
], False)
sketch6.addConstraint([
    Sketcher.Constraint("Equal", 0, 1),
    Sketcher.Constraint("Equal", 1, 2),
    Sketcher.Constraint("Equal", 2, 3),
    Sketcher.Constraint("Horizontal", 0, 3, 1, 3),
    Sketcher.Constraint("Horizontal", 1, 3, 2, 3),
    Sketcher.Constraint("Horizontal", 2, 3, 3, 3),
    Sketcher.Constraint("Diameter", 0, Q("0.1 in")),
    Sketcher.Constraint("DistanceX", 0, 3, 3, 3, Q("0.55 in")),
    Sketcher.Constraint("DistanceY", 0, 3, -1, 1, Q("0.875 in")),
    Sketcher.Constraint("DistanceX", 0, 3, -1, 1, Q("0.0125 in")),
    Sketcher.Constraint("DistanceX", -1, 1, 1, 3, 4.339167),
    Sketcher.Constraint("DistanceX", -1, 1, 2, 3, 8.995833),
])
pocket2 = doc.addObject("PartDesign::Pocket", "Pocket001")
body.addObject(pocket2)
pocket2.Profile = sketch6
pocket2.Length = Q("0.125 in")
pocket2.Reversed = True

sketch7 = doc.addObject("Sketcher::SketchObject", "Sketch006")
body.addObject(sketch7)
sketch7.AttachmentSupport = (doc.XY_Plane, [""])
sketch7.MapMode = "FlatFace"
sketch7.AttachmentOffset = App.Placement(V(0, 0, -1 * 25.4), App.Rotation())
sketch7.addGeometry([
    Part.LineSegment(V(14.6, 7.3, 0), V(14.6, 2.9, 0)),
    Part.LineSegment(V(14.6, 2.9, 0), V(12.1, 2.9, 0)),
    Part.LineSegment(V(12.1, 2.9, 0), V(12.1, 7.3, 0)),
    Part.LineSegment(V(12.1, 7.3, 0), V(14.6, 7.3, 0)),
    Part.LineSegment(V(10.2, 7.3, 0), V(10.2, 2.9, 0)),
    Part.LineSegment(V(10.2, 2.9, 0), V(7.6, 2.9, 0)),
    Part.LineSegment(V(7.6, 2.9, 0), V(7.6, 7.3, 0)),
    Part.LineSegment(V(7.6, 7.3, 0), V(10.2, 7.3, 0)),
    Part.LineSegment(V(5.7, 7.3, 0), V(5.7, 2.9, 0)),
    Part.LineSegment(V(5.7, 2.9, 0), V(3.2, 2.9, 0)),
    Part.LineSegment(V(3.2, 2.9, 0), V(3.2, 7.3, 0)),
    Part.LineSegment(V(3.2, 7.3, 0), V(5.7, 7.3, 0)),
    Part.LineSegment(V(1.3, 7.3, 0), V(1.3, 2.9, 0)),
    Part.LineSegment(V(1.3, 2.9, 0), V(-1.3, 2.9, 0)),
    Part.LineSegment(V(-1.3, 2.9, 0), V(-1.3, 7.3, 0)),
    Part.LineSegment(V(-1.3, 7.3, 0), V(1.3, 7.3, 0)),
], False)
sketch7.addConstraint([
    Sketcher.Constraint("Coincident", 0, 2, 1, 1),
    Sketcher.Constraint("Coincident", 1, 2, 2, 1),
    Sketcher.Constraint("Coincident", 2, 2, 3, 1),
    Sketcher.Constraint("Coincident", 3, 2, 0, 1),
    Sketcher.Constraint("Coincident", 4, 2, 5, 1),
    Sketcher.Constraint("Coincident", 5, 2, 6, 1),
    Sketcher.Constraint("Coincident", 6, 2, 7, 1),
    Sketcher.Constraint("Coincident", 7, 2, 4, 1),
    Sketcher.Constraint("Coincident", 8, 2, 9, 1),
    Sketcher.Constraint("Coincident", 9, 2, 10, 1),
    Sketcher.Constraint("Coincident", 10, 2, 11, 1),
    Sketcher.Constraint("Coincident", 11, 2, 8, 1),
    Sketcher.Constraint("Coincident", 12, 2, 13, 1),
    Sketcher.Constraint("Coincident", 13, 2, 14, 1),
    Sketcher.Constraint("Coincident", 14, 2, 15, 1),
    Sketcher.Constraint("Coincident", 15, 2, 12, 1),
    Sketcher.Constraint("Vertical", 0),
    Sketcher.Constraint("Horizontal", 1),
    Sketcher.Constraint("Vertical", 2),
    Sketcher.Constraint("Horizontal", 3),
    Sketcher.Constraint("Vertical", 4),
    Sketcher.Constraint("Horizontal", 5),
    Sketcher.Constraint("Vertical", 6),
    Sketcher.Constraint("Horizontal", 7),
    Sketcher.Constraint("Vertical", 8),
    Sketcher.Constraint("Horizontal", 9),
    Sketcher.Constraint("Vertical", 10),
    Sketcher.Constraint("Horizontal", 11),
    Sketcher.Constraint("Vertical", 12),
    Sketcher.Constraint("Horizontal", 13),
    Sketcher.Constraint("Vertical", 14),
    Sketcher.Constraint("Horizontal", 15),
    Sketcher.Constraint("Horizontal", 1, 2, 4, 2),
    Sketcher.Constraint("Horizontal", 3, 2, 6, 2),
    Sketcher.Constraint("Horizontal", 5, 2, 8, 2),
    Sketcher.Constraint("Horizontal", 7, 2, 10, 2),
    Sketcher.Constraint("Horizontal", 9, 2, 12, 2),
    Sketcher.Constraint("Horizontal", 11, 2, 14, 2),
    Sketcher.Constraint("Equal", 3, 5),
    Sketcher.Constraint("Equal", 7, 9),
    Sketcher.Constraint("Equal", 11, 13),
    Sketcher.Constraint("DistanceX", 1, 2, 1, 1, Q("0.1 in")),
    Sketcher.Constraint("DistanceX", -1, 1, 4, 2, Q("0.4 in")),
    Sketcher.Constraint("DistanceY", 0, 2, 0, 1, Q("0.175 in")),
    Sketcher.Constraint("DistanceX", -1, 1, 12, 2, Q("0.05 in")),
    Sketcher.Constraint("DistanceX", 8, 2, 1, 2, Q("0.25 in")),
    Sketcher.Constraint("DistanceX", -1, 1, 0, 2, Q("0.575 in")),
    Sketcher.Constraint("DistanceY", -1, 1, 0, 2, Q("0.1125 in")),
])
pocket3 = doc.addObject("PartDesign::Pocket", "Pocket002")
body.addObject(pocket3)
pocket3.Profile = sketch7
pocket3.Length = Q("0.175 in")
pocket3.Reversed = True

doc.recompute()
